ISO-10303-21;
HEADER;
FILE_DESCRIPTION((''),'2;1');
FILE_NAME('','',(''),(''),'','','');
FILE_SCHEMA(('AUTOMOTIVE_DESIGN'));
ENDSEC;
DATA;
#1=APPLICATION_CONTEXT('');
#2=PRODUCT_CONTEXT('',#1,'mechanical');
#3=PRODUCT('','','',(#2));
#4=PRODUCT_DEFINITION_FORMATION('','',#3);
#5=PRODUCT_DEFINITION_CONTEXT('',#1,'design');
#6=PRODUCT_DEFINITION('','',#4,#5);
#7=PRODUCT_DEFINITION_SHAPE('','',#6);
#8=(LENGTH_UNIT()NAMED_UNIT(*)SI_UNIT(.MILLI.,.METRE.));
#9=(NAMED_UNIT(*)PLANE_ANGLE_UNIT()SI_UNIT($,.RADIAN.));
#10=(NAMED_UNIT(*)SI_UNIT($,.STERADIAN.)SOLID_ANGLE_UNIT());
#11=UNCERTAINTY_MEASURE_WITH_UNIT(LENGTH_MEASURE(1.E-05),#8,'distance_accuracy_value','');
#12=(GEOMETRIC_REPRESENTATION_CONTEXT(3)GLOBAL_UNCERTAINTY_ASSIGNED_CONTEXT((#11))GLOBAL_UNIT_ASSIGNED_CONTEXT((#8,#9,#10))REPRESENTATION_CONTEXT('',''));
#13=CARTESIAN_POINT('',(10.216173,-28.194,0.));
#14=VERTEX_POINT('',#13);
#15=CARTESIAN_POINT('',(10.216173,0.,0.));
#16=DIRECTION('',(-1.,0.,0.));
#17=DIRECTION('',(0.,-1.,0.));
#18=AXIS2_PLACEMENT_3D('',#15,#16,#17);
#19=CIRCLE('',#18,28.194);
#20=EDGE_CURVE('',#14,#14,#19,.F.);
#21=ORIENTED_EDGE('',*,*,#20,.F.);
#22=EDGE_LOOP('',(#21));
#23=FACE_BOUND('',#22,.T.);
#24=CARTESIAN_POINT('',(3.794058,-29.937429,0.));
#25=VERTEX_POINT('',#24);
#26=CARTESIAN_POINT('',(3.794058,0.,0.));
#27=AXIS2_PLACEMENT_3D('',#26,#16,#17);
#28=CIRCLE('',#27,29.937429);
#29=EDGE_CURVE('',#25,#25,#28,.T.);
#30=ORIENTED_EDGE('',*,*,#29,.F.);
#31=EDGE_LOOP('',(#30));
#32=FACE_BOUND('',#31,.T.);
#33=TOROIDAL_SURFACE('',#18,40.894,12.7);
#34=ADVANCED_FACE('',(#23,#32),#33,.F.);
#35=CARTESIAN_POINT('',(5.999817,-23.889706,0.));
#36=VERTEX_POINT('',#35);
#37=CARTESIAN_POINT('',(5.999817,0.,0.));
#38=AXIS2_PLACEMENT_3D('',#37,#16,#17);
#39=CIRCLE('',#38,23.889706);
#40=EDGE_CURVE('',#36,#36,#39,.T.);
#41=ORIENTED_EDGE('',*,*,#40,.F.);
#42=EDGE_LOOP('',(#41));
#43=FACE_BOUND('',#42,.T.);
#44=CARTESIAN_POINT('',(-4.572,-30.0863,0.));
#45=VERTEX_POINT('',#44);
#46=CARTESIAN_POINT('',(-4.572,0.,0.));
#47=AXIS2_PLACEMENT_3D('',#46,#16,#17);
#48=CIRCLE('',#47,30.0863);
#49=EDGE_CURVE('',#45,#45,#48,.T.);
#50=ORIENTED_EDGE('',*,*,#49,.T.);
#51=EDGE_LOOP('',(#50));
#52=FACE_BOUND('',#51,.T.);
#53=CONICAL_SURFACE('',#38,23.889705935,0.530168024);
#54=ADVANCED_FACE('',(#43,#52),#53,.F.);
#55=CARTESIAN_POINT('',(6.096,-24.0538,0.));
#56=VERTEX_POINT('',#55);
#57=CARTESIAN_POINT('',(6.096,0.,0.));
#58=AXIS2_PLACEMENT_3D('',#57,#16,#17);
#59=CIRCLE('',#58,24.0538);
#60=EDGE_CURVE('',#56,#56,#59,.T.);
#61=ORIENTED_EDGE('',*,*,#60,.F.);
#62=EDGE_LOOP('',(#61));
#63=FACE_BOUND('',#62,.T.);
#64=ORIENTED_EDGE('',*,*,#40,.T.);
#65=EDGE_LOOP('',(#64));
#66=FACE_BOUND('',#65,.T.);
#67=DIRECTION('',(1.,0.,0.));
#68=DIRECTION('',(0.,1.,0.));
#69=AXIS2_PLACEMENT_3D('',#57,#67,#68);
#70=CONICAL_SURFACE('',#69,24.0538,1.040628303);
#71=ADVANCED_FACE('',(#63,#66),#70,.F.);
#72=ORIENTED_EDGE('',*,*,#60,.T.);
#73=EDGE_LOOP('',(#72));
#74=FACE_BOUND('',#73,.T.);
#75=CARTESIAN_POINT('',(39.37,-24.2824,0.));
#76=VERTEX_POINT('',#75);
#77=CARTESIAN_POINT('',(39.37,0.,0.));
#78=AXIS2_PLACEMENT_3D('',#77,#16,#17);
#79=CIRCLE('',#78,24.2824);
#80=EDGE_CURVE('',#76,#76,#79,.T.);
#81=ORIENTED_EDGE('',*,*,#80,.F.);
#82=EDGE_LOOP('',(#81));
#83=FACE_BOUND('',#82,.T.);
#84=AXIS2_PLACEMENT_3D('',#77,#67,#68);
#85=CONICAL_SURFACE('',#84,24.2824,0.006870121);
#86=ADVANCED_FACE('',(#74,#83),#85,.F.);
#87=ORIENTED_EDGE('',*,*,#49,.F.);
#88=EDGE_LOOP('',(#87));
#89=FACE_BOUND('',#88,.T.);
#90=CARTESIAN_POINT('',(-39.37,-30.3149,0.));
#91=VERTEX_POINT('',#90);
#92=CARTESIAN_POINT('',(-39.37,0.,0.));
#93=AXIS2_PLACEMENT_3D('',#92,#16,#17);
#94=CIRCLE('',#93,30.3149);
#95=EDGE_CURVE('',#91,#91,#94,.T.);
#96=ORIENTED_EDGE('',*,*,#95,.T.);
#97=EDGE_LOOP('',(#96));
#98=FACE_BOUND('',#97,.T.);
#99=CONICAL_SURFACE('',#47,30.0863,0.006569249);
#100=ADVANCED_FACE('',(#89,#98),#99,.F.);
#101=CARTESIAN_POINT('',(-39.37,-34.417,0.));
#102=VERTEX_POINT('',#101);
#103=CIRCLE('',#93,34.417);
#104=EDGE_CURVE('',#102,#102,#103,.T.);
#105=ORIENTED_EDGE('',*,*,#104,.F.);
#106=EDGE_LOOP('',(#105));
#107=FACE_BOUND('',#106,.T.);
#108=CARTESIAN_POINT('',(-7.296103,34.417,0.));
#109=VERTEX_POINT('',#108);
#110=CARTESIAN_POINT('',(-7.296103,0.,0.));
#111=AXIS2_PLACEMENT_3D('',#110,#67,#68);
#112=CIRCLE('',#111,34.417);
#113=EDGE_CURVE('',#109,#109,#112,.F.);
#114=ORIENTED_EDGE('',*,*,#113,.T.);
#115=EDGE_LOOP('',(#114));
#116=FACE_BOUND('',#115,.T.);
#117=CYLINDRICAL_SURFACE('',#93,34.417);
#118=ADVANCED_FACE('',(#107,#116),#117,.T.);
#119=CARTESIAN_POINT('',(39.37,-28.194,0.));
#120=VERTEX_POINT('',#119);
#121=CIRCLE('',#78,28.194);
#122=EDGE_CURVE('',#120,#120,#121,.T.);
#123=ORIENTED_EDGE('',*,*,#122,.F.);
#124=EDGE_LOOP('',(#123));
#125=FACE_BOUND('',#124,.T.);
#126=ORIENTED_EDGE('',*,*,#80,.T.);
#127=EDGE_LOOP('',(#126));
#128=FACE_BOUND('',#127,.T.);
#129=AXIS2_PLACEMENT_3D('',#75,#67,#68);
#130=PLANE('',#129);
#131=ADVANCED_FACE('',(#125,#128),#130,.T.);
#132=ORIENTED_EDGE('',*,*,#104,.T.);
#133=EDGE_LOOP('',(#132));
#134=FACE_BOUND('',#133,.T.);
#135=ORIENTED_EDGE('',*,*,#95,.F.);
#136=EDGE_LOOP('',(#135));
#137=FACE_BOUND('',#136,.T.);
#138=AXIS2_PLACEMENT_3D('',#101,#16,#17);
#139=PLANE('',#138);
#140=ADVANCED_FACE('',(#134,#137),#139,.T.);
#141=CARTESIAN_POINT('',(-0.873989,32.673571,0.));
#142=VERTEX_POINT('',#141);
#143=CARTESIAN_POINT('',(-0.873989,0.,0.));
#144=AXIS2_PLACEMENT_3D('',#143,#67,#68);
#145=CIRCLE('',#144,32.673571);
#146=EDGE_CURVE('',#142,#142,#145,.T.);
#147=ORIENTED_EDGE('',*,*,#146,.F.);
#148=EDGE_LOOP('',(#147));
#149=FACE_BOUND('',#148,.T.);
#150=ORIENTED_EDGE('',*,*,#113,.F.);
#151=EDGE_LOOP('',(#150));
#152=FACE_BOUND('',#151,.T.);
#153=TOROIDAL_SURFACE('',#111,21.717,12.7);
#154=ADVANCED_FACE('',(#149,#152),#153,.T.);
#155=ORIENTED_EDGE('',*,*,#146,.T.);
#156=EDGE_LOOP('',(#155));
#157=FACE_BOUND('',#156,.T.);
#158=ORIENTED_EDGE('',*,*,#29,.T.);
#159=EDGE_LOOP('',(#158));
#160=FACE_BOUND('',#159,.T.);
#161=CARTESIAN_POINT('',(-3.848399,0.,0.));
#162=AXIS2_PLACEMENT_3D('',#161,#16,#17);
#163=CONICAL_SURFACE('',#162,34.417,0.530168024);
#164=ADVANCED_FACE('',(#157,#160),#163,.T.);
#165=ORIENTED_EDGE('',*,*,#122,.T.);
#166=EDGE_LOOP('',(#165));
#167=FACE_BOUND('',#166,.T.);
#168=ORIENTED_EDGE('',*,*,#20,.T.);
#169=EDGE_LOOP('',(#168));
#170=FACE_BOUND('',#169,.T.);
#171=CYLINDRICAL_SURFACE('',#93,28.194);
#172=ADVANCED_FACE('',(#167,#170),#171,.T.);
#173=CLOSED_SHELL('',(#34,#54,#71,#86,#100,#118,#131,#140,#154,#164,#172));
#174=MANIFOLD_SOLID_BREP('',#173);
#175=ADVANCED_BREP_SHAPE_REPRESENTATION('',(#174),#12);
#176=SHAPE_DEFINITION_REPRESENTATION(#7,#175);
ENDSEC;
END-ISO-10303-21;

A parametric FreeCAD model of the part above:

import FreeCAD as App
import Part
import Sketcher
from FreeCAD import Vector
Q = App.Units.Quantity


def edges_at(feature, points):
    """Names of the edges that pass closest to the given points."""
    edges = feature.Shape.Edges
    near = lambda p: min(range(len(edges)), key=lambda i: edges[i].distToShape(Part.Vertex(*p))[0])
    return sorted({f"Edge{near(p) + 1}" for p in points})


def add_polygon(sketch, points):
    """Adds a closed chain of lines whose ends are joined by coincident constraints."""
    first, n = sketch.GeometryCount, len(points)
    for a, b in zip(points, points[1:] + points[:1]):
        sketch.addGeometry(Part.LineSegment(App.Vector(*a, 0), App.Vector(*b, 0)), False)
    for i in range(n):
        sketch.addConstraint(Sketcher.Constraint("Coincident", first + i, 2, first + (i + 1) % n, 1))

doc = App.newDocument("Part")
body = doc.addObject("PartDesign::Body", "Body")

# Sketch on XY plane
sketch1 = body.newObject("Sketcher::SketchObject", "Sketch")
sketch1.AttachmentSupport = (doc.getObject("XY_Plane"), [""])
sketch1.MapMode = "FlatFace"
add_polygon(sketch1, [(6, -23.89), (-4.57, -30.09), (-39.37, -30.31), (-39.37, -34.42), (-3.85, -34.42), (6.77, -28.19), (39.37, -28.19), (39.37, -24.28), (6.1, -24.05)])  # lines 0-8
sketch1.addConstraint([
    Sketcher.Constraint("Vertical", 2),
    Sketcher.Constraint("Horizontal", 3),
    Sketcher.Constraint("Horizontal", 5),
    Sketcher.Constraint("Vertical", 6),
    Sketcher.Constraint("Parallel", 0, 4),
    Sketcher.Constraint("Perpendicular", 4, 8),
    Sketcher.Constraint("DistanceX", 1, 2, 5, 2, Q("3.1 in")),
    Sketcher.Constraint("DistanceY", 6, 1, 6, 2, Q("0.154 in")),
    Sketcher.Constraint("DistanceX", 0, 2, -1, 1, Q("0.18 in")),
    Sketcher.Constraint("DistanceX", 1, 2, -1, 1, Q("1.55 in")),
    Sketcher.Constraint("DistanceY", 4, 2, -1, 1, Q("1.11 in")),
    Sketcher.Constraint("DistanceX", -1, 1, 7, 2, Q("0.24 in")),
    Sketcher.Constraint("DistanceY", 2, 2, 2, 1, Q("0.1615 in")),
    Sketcher.Constraint("DistanceY", 2, 2, -1, 1, Q("1.355 in")),
    Sketcher.Constraint("DistanceY", 7, 2, -1, 1, Q("0.947 in")),
    Sketcher.Constraint("DistanceY", 1, 2, 0, 2, Q("0.009 in")),
    Sketcher.Constraint("DistanceX", 3, 1, 3, 2, Q("35.521601 mm")),
    Sketcher.Constraint("DistanceX", 5, 1, 5, 2, Q("32.601531 mm")),
])
revolution = body.newObject("PartDesign::Revolution", "Revolution")
revolution.Profile = sketch1
revolution.ReferenceAxis = (sketch1, ["H_Axis"])
revolution.Angle = 360
doc.recompute()

fillet = body.newObject("PartDesign::Fillet", "Fillet")
fillet.Base = (revolution, edges_at(revolution, [(-3.848, 34.417, 0), (6.768, 28.194, 0)]))
fillet.Radius = Q("0.5 in")

doc.recompute()
